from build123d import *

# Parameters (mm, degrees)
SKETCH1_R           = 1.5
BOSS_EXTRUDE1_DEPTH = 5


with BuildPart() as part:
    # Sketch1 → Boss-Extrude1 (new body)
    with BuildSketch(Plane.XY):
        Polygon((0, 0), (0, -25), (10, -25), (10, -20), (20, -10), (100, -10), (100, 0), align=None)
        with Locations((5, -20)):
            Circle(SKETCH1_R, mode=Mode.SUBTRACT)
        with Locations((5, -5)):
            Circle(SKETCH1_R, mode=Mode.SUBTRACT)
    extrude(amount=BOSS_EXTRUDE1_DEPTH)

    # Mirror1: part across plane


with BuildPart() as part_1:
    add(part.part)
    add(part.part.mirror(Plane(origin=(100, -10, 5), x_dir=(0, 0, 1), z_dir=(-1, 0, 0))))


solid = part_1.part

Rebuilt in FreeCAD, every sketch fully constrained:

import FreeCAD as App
import Part
import Sketcher
from FreeCAD import Vector


def add_polygon(sketch, points):
    """Adds a closed chain of lines whose ends are joined by coincident constraints."""
    first, n = sketch.GeometryCount, len(points)
    for a, b in zip(points, points[1:] + points[:1]):
        sketch.addGeometry(Part.LineSegment(App.Vector(*a, 0), App.Vector(*b, 0)), False)
    for i in range(n):
        sketch.addConstraint(Sketcher.Constraint("Coincident", first + i, 2, first + (i + 1) % n, 1))

doc = App.newDocument("Part")
body = doc.addObject("PartDesign::Body", "Body")

# Sketch on XY plane
sketch1 = body.newObject("Sketcher::SketchObject", "Sketch")
sketch1.AttachmentSupport = (doc.getObject("XY_Plane"), [""])
sketch1.MapMode = "FlatFace"
add_polygon(sketch1, [(0, 0), (0, -25), (10, -25), (10, -20), (20, -10), (100, -10), (100, 0)])  # lines 0-6
sketch1.addGeometry(Part.Circle(Vector(5, -20, 0), Vector(0, 0, 1), 1.5), False)  # 7
sketch1.addGeometry(Part.Circle(Vector(5, -5, 0), Vector(0, 0, 1), 1.5), False)  # 8
sketch1.addConstraint([
    Sketcher.Constraint("Vertical", 0),
    Sketcher.Constraint("Horizontal", 1),
    Sketcher.Constraint("Vertical", 2),
    Sketcher.Constraint("Horizontal", 4),
    Sketcher.Constraint("Vertical", 5),
    Sketcher.Constraint("Horizontal", 6),
    Sketcher.Constraint("Coincident", 6, 2, -1, 1),
    Sketcher.Constraint("Equal", 7, 8),
    Sketcher.Constraint("Horizontal", 7, 3, 2, 2),
    Sketcher.Constraint("Vertical", 7, 3, 8, 3),
    Sketcher.Constraint("Equal", 1, 5),
    Sketcher.Constraint("Diameter", 7, 3.0),
    Sketcher.Constraint("DistanceX", 1, 1, 1, 2, 10.0),
    Sketcher.Constraint("DistanceX", 4, 1, 4, 2, 80.0),
    Sketcher.Constraint("DistanceX", 6, 2, 6, 1, 100.0),
    Sketcher.Constraint("DistanceY", 0, 2, 0, 1, 25.0),
    Sketcher.Constraint("DistanceY", 2, 1, 2, 2, 5.0),
    Sketcher.Constraint("DistanceX", -1, 1, 7, 3, 5.0),
    Sketcher.Constraint("DistanceY", 8, 3, -1, 1, 5.0),
])
pad1 = body.newObject("PartDesign::Pad", "Pad")
pad1.Profile = sketch1
pad1.Length = 5
body2 = doc.addObject("PartDesign::Body", "Body001")
doc.recompute()

body2.BaseFeature = body
doc.recompute()

mirroring = doc.addObject("Part::Mirroring", "Mirroring")
mirroring.Source = body
mirroring.Base = Vector(100, -10, 5)
mirroring.Normal = Vector(-1, 0, 0)
body3 = doc.addObject("PartDesign::Body", "Body002")
body3.BaseFeature = mirroring
boolean = body2.newObject("PartDesign::Boolean", "Boolean")
boolean.Type = "Fuse"
boolean.addObjects([body3])
doc.recompute()
mirroring.Visibility = False

doc.recompute()
